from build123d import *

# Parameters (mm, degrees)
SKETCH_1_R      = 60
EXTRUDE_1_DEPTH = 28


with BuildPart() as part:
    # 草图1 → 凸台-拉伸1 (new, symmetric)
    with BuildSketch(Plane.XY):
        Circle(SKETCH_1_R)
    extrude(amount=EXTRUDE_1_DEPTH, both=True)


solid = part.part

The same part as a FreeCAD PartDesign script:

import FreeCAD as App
import Part
import Sketcher
Q = App.Units.Quantity

doc = App.newDocument("Part")
body = doc.addObject("PartDesign::Body", "Body")

sketch1 = doc.addObject("Sketcher::SketchObject", "Sketch")
body.addObject(sketch1)
sketch1.AttachmentSupport = (doc.XY_Plane, [""])
sketch1.MapMode = "FlatFace"
sketch1.addGeometry(Part.Circle(App.Vector(0, 0, 0), App.Vector(0, 0, 1), 60), False)
sketch1.addConstraint([
    Sketcher.Constraint("Coincident", 0, 3, -1, 1),
    Sketcher.Constraint("Diameter", 0, Q("120 mm")),
])
pad1 = doc.addObject("PartDesign::Pad", "Pad")
body.addObject(pad1)
pad1.Profile = sketch1
pad1.Length = 56
pad1.Midplane = True

doc.recompute()
